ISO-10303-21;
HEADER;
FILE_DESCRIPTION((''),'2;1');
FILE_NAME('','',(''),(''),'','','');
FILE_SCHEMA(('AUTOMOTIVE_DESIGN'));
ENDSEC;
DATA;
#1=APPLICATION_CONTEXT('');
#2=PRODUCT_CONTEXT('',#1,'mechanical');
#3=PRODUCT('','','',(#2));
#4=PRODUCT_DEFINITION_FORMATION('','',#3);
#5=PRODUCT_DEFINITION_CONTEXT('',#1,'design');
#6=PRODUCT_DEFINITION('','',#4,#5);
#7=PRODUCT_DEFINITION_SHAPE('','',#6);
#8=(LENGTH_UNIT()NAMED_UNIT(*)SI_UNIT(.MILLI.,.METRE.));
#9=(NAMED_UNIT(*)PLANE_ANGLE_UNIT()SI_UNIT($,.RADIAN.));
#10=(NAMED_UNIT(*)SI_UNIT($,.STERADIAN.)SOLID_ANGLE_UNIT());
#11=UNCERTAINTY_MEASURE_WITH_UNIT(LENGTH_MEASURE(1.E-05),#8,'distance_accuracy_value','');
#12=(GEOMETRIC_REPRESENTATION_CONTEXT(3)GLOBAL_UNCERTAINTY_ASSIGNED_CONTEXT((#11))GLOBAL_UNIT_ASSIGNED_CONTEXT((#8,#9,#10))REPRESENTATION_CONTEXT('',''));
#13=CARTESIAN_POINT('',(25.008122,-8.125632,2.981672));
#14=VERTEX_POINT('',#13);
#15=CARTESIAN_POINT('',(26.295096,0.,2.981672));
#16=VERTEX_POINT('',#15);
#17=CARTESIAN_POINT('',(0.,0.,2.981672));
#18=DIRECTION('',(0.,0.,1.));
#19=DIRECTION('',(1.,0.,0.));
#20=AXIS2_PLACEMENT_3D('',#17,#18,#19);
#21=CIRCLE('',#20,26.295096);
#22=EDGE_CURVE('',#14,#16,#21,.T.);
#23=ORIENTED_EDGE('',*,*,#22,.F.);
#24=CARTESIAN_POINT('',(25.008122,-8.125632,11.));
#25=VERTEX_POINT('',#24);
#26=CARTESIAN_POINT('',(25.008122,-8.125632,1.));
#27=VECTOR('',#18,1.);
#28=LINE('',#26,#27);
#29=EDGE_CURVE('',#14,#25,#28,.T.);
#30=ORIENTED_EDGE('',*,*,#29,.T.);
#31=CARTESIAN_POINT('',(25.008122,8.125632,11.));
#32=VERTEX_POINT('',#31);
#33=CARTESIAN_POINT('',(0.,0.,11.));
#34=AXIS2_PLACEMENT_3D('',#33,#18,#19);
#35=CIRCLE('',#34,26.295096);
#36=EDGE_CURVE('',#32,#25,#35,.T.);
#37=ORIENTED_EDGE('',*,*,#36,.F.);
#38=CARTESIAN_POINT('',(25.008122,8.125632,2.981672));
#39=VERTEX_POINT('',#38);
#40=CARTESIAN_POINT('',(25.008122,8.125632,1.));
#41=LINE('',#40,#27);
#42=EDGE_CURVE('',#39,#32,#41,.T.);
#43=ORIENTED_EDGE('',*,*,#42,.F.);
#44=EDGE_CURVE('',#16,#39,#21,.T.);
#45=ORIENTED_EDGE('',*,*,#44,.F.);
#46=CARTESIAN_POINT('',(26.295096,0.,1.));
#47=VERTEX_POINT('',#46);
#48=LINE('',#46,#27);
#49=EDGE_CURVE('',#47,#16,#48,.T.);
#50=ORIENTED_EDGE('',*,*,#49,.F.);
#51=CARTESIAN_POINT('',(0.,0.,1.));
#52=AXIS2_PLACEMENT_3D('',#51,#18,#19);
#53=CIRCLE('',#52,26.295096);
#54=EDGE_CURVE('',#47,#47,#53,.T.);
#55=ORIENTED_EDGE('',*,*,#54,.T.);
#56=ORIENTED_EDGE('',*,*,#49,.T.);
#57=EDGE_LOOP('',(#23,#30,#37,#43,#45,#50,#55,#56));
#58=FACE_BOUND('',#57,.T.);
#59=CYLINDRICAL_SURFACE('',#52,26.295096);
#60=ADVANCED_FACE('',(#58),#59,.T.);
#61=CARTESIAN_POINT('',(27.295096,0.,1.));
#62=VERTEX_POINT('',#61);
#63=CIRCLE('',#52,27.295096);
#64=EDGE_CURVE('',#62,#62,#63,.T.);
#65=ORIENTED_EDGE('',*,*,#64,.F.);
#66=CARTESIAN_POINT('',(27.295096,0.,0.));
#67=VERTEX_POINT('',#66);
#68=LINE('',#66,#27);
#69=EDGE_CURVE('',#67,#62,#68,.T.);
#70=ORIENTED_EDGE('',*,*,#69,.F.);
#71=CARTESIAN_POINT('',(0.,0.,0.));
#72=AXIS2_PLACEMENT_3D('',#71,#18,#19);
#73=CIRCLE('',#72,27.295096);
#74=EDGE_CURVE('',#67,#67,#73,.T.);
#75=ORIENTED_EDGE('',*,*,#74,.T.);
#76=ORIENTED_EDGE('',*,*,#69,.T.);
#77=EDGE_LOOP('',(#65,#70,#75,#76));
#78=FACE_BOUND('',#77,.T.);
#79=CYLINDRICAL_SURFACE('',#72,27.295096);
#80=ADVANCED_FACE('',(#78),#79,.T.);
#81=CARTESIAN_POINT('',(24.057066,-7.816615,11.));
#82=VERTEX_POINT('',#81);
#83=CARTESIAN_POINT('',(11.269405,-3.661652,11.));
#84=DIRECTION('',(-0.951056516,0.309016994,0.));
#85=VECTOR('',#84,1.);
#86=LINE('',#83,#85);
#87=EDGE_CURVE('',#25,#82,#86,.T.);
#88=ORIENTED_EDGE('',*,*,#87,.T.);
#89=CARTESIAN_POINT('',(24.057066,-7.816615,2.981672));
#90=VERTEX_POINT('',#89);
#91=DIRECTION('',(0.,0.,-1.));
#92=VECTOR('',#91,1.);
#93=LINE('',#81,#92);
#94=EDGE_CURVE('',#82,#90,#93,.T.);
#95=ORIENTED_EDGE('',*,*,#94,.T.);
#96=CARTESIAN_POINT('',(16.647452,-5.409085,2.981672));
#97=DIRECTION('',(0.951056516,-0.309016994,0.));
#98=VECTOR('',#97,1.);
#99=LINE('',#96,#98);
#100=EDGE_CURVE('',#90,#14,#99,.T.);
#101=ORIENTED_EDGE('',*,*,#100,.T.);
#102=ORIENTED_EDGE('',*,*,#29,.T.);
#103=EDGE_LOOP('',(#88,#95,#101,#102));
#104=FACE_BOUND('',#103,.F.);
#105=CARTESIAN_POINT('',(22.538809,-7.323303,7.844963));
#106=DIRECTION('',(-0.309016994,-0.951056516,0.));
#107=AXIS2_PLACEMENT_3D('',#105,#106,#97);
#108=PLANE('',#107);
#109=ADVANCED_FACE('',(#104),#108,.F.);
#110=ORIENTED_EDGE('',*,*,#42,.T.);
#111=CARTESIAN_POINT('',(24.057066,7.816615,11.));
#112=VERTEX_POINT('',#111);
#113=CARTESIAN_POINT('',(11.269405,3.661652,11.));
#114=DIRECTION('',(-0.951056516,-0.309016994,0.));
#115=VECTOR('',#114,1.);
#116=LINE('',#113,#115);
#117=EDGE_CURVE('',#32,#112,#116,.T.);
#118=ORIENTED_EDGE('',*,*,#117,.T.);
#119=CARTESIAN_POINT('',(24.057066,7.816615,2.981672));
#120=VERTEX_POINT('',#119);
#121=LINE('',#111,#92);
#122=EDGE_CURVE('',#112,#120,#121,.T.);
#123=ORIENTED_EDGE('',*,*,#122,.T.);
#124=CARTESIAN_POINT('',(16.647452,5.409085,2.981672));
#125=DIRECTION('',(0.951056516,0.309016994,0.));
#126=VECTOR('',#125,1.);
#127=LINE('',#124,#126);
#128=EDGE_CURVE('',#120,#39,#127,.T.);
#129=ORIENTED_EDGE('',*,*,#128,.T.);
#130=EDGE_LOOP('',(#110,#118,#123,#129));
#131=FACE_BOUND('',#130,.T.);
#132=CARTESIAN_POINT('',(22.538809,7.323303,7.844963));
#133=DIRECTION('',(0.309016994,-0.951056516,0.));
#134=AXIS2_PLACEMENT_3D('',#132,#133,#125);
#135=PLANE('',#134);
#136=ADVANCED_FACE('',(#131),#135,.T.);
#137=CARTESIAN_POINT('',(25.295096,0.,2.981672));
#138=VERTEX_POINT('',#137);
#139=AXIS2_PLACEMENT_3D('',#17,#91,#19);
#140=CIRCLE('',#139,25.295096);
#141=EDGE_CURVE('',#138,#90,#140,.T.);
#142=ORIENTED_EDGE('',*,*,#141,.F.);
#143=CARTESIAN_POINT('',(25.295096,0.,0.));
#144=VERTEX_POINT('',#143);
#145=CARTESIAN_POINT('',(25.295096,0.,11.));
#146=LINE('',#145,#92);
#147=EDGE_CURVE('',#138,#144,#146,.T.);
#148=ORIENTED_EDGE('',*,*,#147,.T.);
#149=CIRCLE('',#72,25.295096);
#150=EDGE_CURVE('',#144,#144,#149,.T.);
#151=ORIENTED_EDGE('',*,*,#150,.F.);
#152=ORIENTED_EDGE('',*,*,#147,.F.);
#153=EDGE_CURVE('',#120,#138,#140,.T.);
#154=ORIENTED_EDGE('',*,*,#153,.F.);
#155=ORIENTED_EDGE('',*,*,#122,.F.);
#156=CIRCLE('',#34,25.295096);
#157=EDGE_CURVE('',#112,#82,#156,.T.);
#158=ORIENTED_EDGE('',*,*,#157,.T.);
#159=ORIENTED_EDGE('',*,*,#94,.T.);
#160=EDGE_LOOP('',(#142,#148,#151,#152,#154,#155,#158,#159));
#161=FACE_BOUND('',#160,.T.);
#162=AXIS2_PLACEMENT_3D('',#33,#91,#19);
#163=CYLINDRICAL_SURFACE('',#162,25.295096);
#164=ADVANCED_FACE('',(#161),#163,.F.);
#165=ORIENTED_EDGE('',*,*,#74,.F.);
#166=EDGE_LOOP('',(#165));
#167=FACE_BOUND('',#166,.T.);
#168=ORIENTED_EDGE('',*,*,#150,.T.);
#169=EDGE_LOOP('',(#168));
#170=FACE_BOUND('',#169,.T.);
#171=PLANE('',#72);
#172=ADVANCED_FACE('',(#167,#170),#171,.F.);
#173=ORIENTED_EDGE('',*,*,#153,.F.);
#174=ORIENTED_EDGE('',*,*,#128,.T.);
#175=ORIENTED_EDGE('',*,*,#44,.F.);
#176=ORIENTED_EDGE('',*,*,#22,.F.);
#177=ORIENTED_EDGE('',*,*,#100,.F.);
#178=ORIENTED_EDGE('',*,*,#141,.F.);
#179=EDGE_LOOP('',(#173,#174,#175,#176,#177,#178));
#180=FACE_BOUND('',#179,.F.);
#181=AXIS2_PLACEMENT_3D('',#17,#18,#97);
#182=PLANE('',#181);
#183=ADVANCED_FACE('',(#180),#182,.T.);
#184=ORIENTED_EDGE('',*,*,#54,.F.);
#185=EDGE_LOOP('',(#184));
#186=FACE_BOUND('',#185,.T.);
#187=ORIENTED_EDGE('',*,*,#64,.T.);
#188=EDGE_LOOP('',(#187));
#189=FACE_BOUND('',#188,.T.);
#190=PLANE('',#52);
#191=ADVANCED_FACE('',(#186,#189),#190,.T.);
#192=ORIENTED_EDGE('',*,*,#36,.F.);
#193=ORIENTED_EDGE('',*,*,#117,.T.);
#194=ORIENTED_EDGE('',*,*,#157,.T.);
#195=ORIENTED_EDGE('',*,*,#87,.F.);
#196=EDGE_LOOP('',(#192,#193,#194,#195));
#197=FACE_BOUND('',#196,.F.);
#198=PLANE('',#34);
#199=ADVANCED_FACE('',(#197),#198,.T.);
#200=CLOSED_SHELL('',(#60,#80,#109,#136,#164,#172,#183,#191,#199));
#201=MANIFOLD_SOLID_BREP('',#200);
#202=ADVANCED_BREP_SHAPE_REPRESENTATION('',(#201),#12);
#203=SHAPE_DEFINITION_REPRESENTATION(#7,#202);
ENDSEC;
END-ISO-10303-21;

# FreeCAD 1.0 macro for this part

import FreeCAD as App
import Part
import Sketcher
from FreeCAD import Vector


def add_polygon(sketch, points):
    """Adds a closed chain of lines whose ends are joined by coincident constraints."""
    first, n = sketch.GeometryCount, len(points)
    for a, b in zip(points, points[1:] + points[:1]):
        sketch.addGeometry(Part.LineSegment(App.Vector(*a, 0), App.Vector(*b, 0)), False)
    for i in range(n):
        sketch.addConstraint(Sketcher.Constraint("Coincident", first + i, 2, first + (i + 1) % n, 1))

doc = App.newDocument("Part")
body = doc.addObject("PartDesign::Body", "Body")

# Sketch on XZ plane
sketch1 = doc.addObject("Sketcher::SketchObject", "Sketch")
body.addObject(sketch1)
sketch1.AttachmentSupport = (doc.XZ_Plane, [""])
sketch1.MapMode = "FlatFace"
add_polygon(sketch1, [(25.3, 0), (27.3, 0), (27.3, 1), (26.3, 1), (26.3, 11), (25.3, 11)])  # lines 0-5
sketch1.addConstraint([
    Sketcher.Constraint("Horizontal", 0),
    Sketcher.Constraint("Vertical", 1),
    Sketcher.Constraint("Horizontal", 2),
    Sketcher.Constraint("Vertical", 3),
    Sketcher.Constraint("Horizontal", 4),
    Sketcher.Constraint("Vertical", 5),
    Sketcher.Constraint("PointOnObject", 0, 2, -1),
    Sketcher.Constraint("Equal", 2, 4),
    Sketcher.Constraint("Equal", 4, 1),
    Sketcher.Constraint("DistanceX", 0, 1, 0, 2, 2.0),
    Sketcher.Constraint("DistanceY", 3, 1, 3, 2, 10.0),
    Sketcher.Constraint("DistanceX", -1, 1, 0, 2, 27.295096),
])
revolution = doc.addObject("PartDesign::Revolution", "Revolution")
body.addObject(revolution)
revolution.Profile = sketch1
revolution.ReferenceAxis = (sketch1, ["V_Axis"])
revolution.Angle = 360

# Sketch on an angled plane
sketch2 = doc.addObject("Sketcher::SketchObject", "Sketch001")
body.addObject(sketch2)
sketch2.Placement = App.Placement(Vector(0, 0, 0), App.Rotation(Vector(0.951056516, -0.309016994, 0), Vector(0, 0, 0.999999999), Vector(-0.309016994, -0.951056516, 0), "ZXY"))
add_polygon(sketch2, [(18, 3), (28, 3), (28, 13), (18, 13)])  # lines 0-3
sketch2.addConstraint([
    Sketcher.Constraint("Horizontal", 0),
    Sketcher.Constraint("Vertical", 1),
    Sketcher.Constraint("Horizontal", 2),
    Sketcher.Constraint("Vertical", 3),
    Sketcher.Constraint("DistanceY", 1, 1, 1, 2, 10.0),
    Sketcher.Constraint("DistanceX", 0, 1, 0, 2, 10.770481),
    Sketcher.Constraint("DistanceY", -1, 1, 0, 2, 2.981672),
    Sketcher.Constraint("DistanceX", -1, 1, 0, 2, 28.274648),
])
groove = doc.addObject("PartDesign::Groove", "Groove")
body.addObject(groove)
groove.Profile = sketch2
groove.ReferenceAxis = (sketch2, ["V_Axis"])
groove.Angle = 36

doc.recompute()
